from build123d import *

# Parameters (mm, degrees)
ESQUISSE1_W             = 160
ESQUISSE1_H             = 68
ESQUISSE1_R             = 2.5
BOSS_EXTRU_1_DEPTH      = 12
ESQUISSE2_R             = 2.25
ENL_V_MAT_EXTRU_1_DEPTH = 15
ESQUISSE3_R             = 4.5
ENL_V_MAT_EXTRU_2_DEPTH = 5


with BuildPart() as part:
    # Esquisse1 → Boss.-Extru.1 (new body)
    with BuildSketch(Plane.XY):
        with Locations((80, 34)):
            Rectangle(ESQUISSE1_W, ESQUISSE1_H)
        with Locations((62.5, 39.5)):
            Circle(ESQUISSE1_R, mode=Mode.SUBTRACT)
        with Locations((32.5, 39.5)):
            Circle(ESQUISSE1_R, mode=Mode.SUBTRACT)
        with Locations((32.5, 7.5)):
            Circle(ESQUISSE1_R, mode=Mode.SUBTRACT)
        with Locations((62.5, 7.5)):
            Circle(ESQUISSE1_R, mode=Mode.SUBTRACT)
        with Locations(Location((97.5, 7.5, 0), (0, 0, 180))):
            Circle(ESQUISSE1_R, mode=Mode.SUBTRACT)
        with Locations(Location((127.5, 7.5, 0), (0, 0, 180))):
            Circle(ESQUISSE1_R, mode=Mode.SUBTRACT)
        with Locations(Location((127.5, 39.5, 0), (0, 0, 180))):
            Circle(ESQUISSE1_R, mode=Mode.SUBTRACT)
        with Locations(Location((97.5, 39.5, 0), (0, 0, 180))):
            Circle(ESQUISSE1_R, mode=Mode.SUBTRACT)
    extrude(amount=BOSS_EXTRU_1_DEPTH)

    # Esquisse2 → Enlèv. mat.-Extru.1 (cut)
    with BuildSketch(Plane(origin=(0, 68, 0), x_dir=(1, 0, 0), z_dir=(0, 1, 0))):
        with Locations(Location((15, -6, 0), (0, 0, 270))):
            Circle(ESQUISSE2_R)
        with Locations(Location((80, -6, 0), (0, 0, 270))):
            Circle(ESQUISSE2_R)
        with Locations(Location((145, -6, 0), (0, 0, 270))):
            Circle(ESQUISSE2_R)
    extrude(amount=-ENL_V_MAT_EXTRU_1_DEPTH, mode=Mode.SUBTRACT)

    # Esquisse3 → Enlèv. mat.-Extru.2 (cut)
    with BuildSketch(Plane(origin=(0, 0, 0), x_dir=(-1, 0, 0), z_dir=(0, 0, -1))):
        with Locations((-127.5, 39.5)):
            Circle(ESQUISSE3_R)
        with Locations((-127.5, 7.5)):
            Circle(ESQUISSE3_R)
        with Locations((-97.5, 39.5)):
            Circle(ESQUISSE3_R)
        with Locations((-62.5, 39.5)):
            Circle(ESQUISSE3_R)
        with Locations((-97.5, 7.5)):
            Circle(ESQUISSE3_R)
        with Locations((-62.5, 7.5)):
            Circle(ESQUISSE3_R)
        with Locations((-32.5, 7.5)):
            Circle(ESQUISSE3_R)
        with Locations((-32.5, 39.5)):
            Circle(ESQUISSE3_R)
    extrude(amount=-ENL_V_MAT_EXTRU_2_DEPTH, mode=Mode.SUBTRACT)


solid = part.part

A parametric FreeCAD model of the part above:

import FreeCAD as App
import Part
import Sketcher
Q = App.Units.Quantity


def add_polygon(sketch, points):
    """Adds a closed chain of lines whose ends are joined by coincident constraints."""
    first, n = sketch.GeometryCount, len(points)
    for a, b in zip(points, points[1:] + points[:1]):
        sketch.addGeometry(Part.LineSegment(App.Vector(*a, 0), App.Vector(*b, 0)), False)
    for i in range(n):
        sketch.addConstraint(Sketcher.Constraint("Coincident", first + i, 2, first + (i + 1) % n, 1))

doc = App.newDocument("Part")
body = doc.addObject("PartDesign::Body", "Body")

# Sketch on XY plane
sketch1 = body.newObject("Sketcher::SketchObject", "Sketch")
sketch1.AttachmentSupport = (doc.getObject("XY_Plane"), [""])
sketch1.MapMode = "FlatFace"
add_polygon(sketch1, [(0, 68), (0, 0), (160, 0), (160, 68)])  # lines 0-3
sketch1.addGeometry(Part.Circle(App.Vector(32.5, 7.5, 0), App.Vector(0, 0, 1), 2.5), False)  # 4
sketch1.addGeometry(Part.Circle(App.Vector(62.5, 7.5, 0), App.Vector(0, 0, 1), 2.5), False)  # 5
sketch1.addGeometry(Part.Circle(App.Vector(97.5, 7.5, 0), App.Vector(0, 0, 1), 2.5), False)  # 6
sketch1.addGeometry(Part.Circle(App.Vector(127.5, 7.5, 0), App.Vector(0, 0, 1), 2.5), False)  # 7
sketch1.addGeometry(Part.Circle(App.Vector(32.5, 39.5, 0), App.Vector(0, 0, 1), 2.5), False)  # 8
sketch1.addGeometry(Part.Circle(App.Vector(62.5, 39.5, 0), App.Vector(0, 0, 1), 2.5), False)  # 9
sketch1.addGeometry(Part.Circle(App.Vector(97.5, 39.5, 0), App.Vector(0, 0, 1), 2.5), False)  # 10
sketch1.addGeometry(Part.Circle(App.Vector(127.5, 39.5, 0), App.Vector(0, 0, 1), 2.5), False)  # 11
sketch1.addConstraint([
    Sketcher.Constraint("Vertical", 0),
    Sketcher.Constraint("Horizontal", 1),
    Sketcher.Constraint("Vertical", 2),
    Sketcher.Constraint("Horizontal", 3),
    Sketcher.Constraint("Coincident", 0, 2, -1, 1),
    Sketcher.Constraint("Equal", 4, 5),
    Sketcher.Constraint("Equal", 5, 6),
    Sketcher.Constraint("Equal", 6, 7),
    Sketcher.Constraint("Equal", 7, 8),
    Sketcher.Constraint("Equal", 8, 9),
    Sketcher.Constraint("Equal", 9, 10),
    Sketcher.Constraint("Equal", 10, 11),
    Sketcher.Constraint("Horizontal", 4, 3, 5, 3),
    Sketcher.Constraint("Horizontal", 5, 3, 6, 3),
    Sketcher.Constraint("Horizontal", 6, 3, 7, 3),
    Sketcher.Constraint("Horizontal", 8, 3, 9, 3),
    Sketcher.Constraint("Horizontal", 9, 3, 10, 3),
    Sketcher.Constraint("Horizontal", 10, 3, 11, 3),
    Sketcher.Constraint("Vertical", 4, 3, 8, 3),
    Sketcher.Constraint("Vertical", 5, 3, 9, 3),
    Sketcher.Constraint("Vertical", 6, 3, 10, 3),
    Sketcher.Constraint("Vertical", 7, 3, 11, 3),
    Sketcher.Constraint("Diameter", 4, Q("5 mm")),
    Sketcher.Constraint("DistanceX", 1, 1, 1, 2, Q("160 mm")),
    Sketcher.Constraint("DistanceY", 0, 2, 0, 1, Q("68 mm")),
    Sketcher.Constraint("DistanceX", 4, 3, 5, 3, Q("30 mm")),
    Sketcher.Constraint("DistanceX", 5, 3, 6, 3, Q("35 mm")),
    Sketcher.Constraint("DistanceX", 6, 3, 7, 3, Q("30 mm")),
    Sketcher.Constraint("DistanceY", 4, 3, 8, 3, Q("32 mm")),
    Sketcher.Constraint("DistanceX", -1, 1, 4, 3, Q("32.5 mm")),
    Sketcher.Constraint("DistanceY", -1, 1, 4, 3, Q("7.5 mm")),
])
pad1 = body.newObject("PartDesign::Pad", "Pad")
pad1.Profile = sketch1
pad1.Length = 12

# Sketch on XZ plane
sketch2 = body.newObject("Sketcher::SketchObject", "Sketch001")
sketch2.AttachmentSupport = (doc.getObject("XZ_Plane"), [""])
sketch2.MapMode = "FlatFace"
sketch2.AttachmentOffset = App.Placement(App.Vector(0, 0, -68), App.Rotation())
sketch2.addGeometry([
    Part.Circle(App.Vector(15, 6, 0), App.Vector(0, 0, 1), 2.2),
    Part.Circle(App.Vector(80, 6, 0), App.Vector(0, 0, 1), 2.2),
    Part.Circle(App.Vector(145, 6, 0), App.Vector(0, 0, 1), 2.2),
], False)
sketch2.addConstraint([
    Sketcher.Constraint("Equal", 0, 1),
    Sketcher.Constraint("Equal", 1, 2),
    Sketcher.Constraint("Horizontal", 0, 3, 1, 3),
    Sketcher.Constraint("Horizontal", 1, 3, 2, 3),
    Sketcher.Constraint("Diameter", 0, Q("4.5 mm")),
    Sketcher.Constraint("DistanceX", -1, 1, 0, 3, Q("15 mm")),
    Sketcher.Constraint("DistanceY", -1, 1, 0, 3, Q("6 mm")),
    Sketcher.Constraint("DistanceX", -1, 1, 1, 3, Q("80 mm")),
    Sketcher.Constraint("DistanceX", -1, 1, 2, 3, Q("145 mm")),
])
pocket1 = body.newObject("PartDesign::Pocket", "Pocket")
pocket1.Profile = sketch2
pocket1.Length = 15
pocket1.Reversed = True

# Sketch on XY plane
sketch3 = body.newObject("Sketcher::SketchObject", "Sketch002")
sketch3.AttachmentSupport = (doc.getObject("XY_Plane"), [""])
sketch3.MapMode = "FlatFace"
sketch3.addGeometry([
    Part.Circle(App.Vector(127.5, 39.5, 0), App.Vector(0, 0, 1), 4.5),  # 0
    Part.Circle(App.Vector(127.5, 7.5, 0), App.Vector(0, 0, 1), 4.5),  # 1
    Part.Circle(App.Vector(97.5, 39.5, 0), App.Vector(0, 0, 1), 4.5),  # 2
    Part.Circle(App.Vector(62.5, 39.5, 0), App.Vector(0, 0, 1), 4.5),  # 3
    Part.Circle(App.Vector(97.5, 7.5, 0), App.Vector(0, 0, 1), 4.5),  # 4
    Part.Circle(App.Vector(62.5, 7.5, 0), App.Vector(0, 0, 1), 4.5),  # 5
    Part.Circle(App.Vector(32.5, 7.5, 0), App.Vector(0, 0, 1), 4.5),  # 6
    Part.Circle(App.Vector(32.5, 39.5, 0), App.Vector(0, 0, 1), 4.5),  # 7
], False)
sketch3.addConstraint([
    Sketcher.Constraint("Equal", 0, 1),
    Sketcher.Constraint("Equal", 1, 2),
    Sketcher.Constraint("Equal", 2, 3),
    Sketcher.Constraint("Equal", 3, 4),
    Sketcher.Constraint("Equal", 4, 5),
    Sketcher.Constraint("Equal", 5, 6),
    Sketcher.Constraint("Equal", 6, 7),
    Sketcher.Constraint("Horizontal", 0, 3, 2, 3),
    Sketcher.Constraint("Horizontal", 2, 3, 3, 3),
    Sketcher.Constraint("Horizontal", 1, 3, 4, 3),
    Sketcher.Constraint("Horizontal", 4, 3, 5, 3),
    Sketcher.Constraint("Horizontal", 5, 3, 6, 3),
    Sketcher.Constraint("Horizontal", 3, 3, 7, 3),
    Sketcher.Constraint("Vertical", 0, 3, 1, 3),
    Sketcher.Constraint("Vertical", 2, 3, 4, 3),
    Sketcher.Constraint("Vertical", 3, 3, 5, 3),
    Sketcher.Constraint("Vertical", 6, 3, 7, 3),
    Sketcher.Constraint("Diameter", 0, Q("9 mm")),
    Sketcher.Constraint("DistanceY", 1, 3, 0, 3, Q("32 mm")),
    Sketcher.Constraint("DistanceX", 2, 3, 0, 3, Q("30 mm")),
    Sketcher.Constraint("DistanceX", 3, 3, 2, 3, Q("35 mm")),
    Sketcher.Constraint("DistanceX", 6, 3, 5, 3, Q("30 mm")),
    Sketcher.Constraint("DistanceX", -1, 1, 0, 3, Q("127.5 mm")),
    Sketcher.Constraint("DistanceY", -1, 1, 0, 3, Q("39.5 mm")),
])
pocket2 = body.newObject("PartDesign::Pocket", "Pocket001")
pocket2.Profile = sketch3
pocket2.Length = 5
pocket2.Reversed = True

doc.recompute()
